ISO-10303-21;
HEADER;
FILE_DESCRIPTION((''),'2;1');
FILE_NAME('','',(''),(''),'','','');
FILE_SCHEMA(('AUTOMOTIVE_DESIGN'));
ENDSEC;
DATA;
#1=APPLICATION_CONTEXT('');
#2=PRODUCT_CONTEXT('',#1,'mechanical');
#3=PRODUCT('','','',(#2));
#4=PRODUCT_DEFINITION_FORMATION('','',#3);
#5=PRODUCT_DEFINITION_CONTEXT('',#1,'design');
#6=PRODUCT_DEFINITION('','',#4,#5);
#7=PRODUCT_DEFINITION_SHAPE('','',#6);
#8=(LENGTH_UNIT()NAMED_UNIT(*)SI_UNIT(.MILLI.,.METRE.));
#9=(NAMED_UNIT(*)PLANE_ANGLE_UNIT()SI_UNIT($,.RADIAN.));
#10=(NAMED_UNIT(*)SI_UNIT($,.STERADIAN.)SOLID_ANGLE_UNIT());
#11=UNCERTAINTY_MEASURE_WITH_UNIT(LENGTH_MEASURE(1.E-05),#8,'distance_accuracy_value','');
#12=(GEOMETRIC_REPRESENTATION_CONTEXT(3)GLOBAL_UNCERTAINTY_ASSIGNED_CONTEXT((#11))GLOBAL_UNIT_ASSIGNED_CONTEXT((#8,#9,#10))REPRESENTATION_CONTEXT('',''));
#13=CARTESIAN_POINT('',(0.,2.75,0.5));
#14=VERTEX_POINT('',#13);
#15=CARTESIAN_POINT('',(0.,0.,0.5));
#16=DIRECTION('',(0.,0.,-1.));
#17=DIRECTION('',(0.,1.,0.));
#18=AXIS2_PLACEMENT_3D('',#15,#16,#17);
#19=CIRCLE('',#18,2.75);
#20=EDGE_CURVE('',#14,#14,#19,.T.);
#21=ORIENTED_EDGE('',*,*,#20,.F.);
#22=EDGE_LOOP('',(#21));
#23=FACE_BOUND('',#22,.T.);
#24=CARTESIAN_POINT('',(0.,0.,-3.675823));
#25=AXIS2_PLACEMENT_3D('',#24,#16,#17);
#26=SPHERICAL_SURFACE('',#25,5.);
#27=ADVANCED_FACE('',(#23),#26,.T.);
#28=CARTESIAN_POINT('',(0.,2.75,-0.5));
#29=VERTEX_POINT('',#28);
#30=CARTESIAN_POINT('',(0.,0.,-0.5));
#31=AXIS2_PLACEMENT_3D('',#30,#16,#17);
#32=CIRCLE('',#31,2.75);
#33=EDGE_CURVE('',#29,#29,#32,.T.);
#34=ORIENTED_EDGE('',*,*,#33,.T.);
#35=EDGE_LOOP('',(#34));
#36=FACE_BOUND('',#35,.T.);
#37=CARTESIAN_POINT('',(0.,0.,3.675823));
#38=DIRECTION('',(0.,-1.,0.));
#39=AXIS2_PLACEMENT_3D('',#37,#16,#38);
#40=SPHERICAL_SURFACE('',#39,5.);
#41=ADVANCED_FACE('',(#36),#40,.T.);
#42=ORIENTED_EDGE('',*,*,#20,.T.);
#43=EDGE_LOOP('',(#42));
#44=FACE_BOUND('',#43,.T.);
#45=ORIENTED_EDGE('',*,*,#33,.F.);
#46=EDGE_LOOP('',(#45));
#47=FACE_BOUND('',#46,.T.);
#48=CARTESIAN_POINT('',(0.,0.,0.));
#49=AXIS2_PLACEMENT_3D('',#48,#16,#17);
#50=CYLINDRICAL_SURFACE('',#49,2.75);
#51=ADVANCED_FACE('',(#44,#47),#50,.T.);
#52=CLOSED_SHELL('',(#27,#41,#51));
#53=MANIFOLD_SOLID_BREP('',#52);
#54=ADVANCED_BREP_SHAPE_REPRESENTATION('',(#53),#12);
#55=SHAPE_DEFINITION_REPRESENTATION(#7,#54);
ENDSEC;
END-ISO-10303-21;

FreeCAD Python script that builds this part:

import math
import FreeCAD as App
import Part
import Sketcher

V = App.Vector

doc = App.newDocument("Part")
body = doc.addObject("PartDesign::Body", "Body")

# Sketch on YZ plane
sketch1 = doc.addObject("Sketcher::SketchObject", "Sketch")
body.addObject(sketch1)
sketch1.AttachmentSupport = (doc.YZ_Plane, [""])
sketch1.MapMode = "FlatFace"
sketch1.addGeometry(Part.ArcOfCircle(Part.Circle(V(0, 3.7, 0), V(0, 0, 1), 5), math.radians(-90), math.radians(-57)), False)
sketch1.addGeometry(Part.LineSegment(V(2.8, -0.5, 0), V(2.8, 0.5, 0)), False)
sketch1.addGeometry(Part.ArcOfCircle(Part.Circle(V(0, -3.7, 0), V(0, 0, 1), 5), math.radians(57), math.radians(90)), False)
sketch1.addGeometry(Part.LineSegment(V(0, 1.3, 0), V(0, -1.3, 0)), False)
sketch1.addConstraint(Sketcher.Constraint("Coincident", 0, 2, 1, 1))
sketch1.addConstraint(Sketcher.Constraint("Coincident", 1, 2, 2, 1))
sketch1.addConstraint(Sketcher.Constraint("Coincident", 2, 2, 3, 1))
sketch1.addConstraint(Sketcher.Constraint("Coincident", 3, 2, 0, 1))
sketch1.addConstraint(Sketcher.Constraint("Vertical", 1))
sketch1.addConstraint(Sketcher.Constraint("Vertical", 3))
sketch1.addConstraint(Sketcher.Constraint("Equal", 0, 2))
sketch1.addConstraint(Sketcher.Constraint("Symmetric", 0, 3, 2, 3, -1, 1))
sketch1.addConstraint(Sketcher.Constraint("PointOnObject", 0, 3, -2))
sketch1.addConstraint(Sketcher.Constraint("PointOnObject", 2, 2, -2))
sketch1.addConstraint(Sketcher.Constraint("Radius", 0, 5.0))
sketch1.addConstraint(Sketcher.Constraint("DistanceY", 1, 1, 1, 2, 1.0))
sketch1.addConstraint(Sketcher.Constraint("DistanceX", -1, 1, 0, 2, 2.75))
revolution = doc.addObject("PartDesign::Revolution", "Revolution")
body.addObject(revolution)
revolution.Profile = sketch1
revolution.ReferenceAxis = (sketch1, ["V_Axis"])
revolution.Angle = 360

doc.recompute()
